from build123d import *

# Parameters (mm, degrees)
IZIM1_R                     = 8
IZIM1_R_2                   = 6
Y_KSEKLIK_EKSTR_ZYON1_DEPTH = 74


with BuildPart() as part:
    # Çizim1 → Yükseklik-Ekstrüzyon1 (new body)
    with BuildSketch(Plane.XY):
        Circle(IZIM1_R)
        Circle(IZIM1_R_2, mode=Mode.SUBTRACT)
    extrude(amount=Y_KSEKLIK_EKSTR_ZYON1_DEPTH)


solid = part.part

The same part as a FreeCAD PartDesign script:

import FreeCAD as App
import Part
import Sketcher

V = App.Vector
Q = App.Units.Quantity

doc = App.newDocument("Part")
body = doc.addObject("PartDesign::Body", "Body")

sketch1 = body.newObject("Sketcher::SketchObject", "Sketch")
sketch1.AttachmentSupport = (doc.getObject("XY_Plane"), [""])
sketch1.MapMode = "FlatFace"
sketch1.addGeometry([
    Part.Circle(V(0, 0, 0), V(0, 0, 1), 8),
    Part.Circle(V(0, 0, 0), V(0, 0, 1), 6),
], False)
sketch1.addConstraint([
    Sketcher.Constraint("Coincident", 0, 3, -1, 1),
    Sketcher.Constraint("Coincident", 1, 3, -1, 1),
    Sketcher.Constraint("Diameter", 0, Q("16 mm")),
    Sketcher.Constraint("Diameter", 1, Q("12 mm")),
])
pad1 = body.newObject("PartDesign::Pad", "Pad")
pad1.Profile = sketch1
pad1.Length = 74

doc.recompute()
